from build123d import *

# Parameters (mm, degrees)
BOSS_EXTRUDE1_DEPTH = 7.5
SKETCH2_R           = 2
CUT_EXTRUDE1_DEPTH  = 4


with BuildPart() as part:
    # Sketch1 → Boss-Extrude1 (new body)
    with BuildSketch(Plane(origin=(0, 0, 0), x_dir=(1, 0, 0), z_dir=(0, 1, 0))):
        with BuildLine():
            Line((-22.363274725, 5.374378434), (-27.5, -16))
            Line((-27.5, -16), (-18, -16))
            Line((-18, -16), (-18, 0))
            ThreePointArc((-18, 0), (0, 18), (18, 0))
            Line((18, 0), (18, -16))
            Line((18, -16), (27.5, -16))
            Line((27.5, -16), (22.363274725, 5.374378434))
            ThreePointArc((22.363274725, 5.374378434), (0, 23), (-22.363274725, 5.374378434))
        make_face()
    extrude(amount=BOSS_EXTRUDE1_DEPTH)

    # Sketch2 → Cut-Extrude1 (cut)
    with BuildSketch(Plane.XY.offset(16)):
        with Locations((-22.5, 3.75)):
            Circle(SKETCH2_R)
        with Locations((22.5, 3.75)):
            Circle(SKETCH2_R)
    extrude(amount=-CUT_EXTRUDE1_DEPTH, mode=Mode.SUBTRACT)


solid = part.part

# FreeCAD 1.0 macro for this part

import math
import FreeCAD as App
import Part
import Sketcher
from FreeCAD import Vector
Q = App.Units.Quantity

doc = App.newDocument("Part")
body = doc.addObject("PartDesign::Body", "Body")

# Sketch on XZ plane
sketch1 = doc.addObject("Sketcher::SketchObject", "Sketch")
body.addObject(sketch1)
sketch1.AttachmentSupport = (doc.XZ_Plane, [""])
sketch1.MapMode = "FlatFace"
sketch1.addGeometry([
    Part.LineSegment(Vector(-22, -5, 0), Vector(-28, 16, 0)),  # 0
    Part.LineSegment(Vector(-28, 16, 0), Vector(-18, 16, 0)),  # 1
    Part.LineSegment(Vector(-18, 16, 0), Vector(-18, 0, 0)),  # 2
    Part.ArcOfCircle(Part.Circle(Vector(0, 0, 0), Vector(0, 0, 1), 18), math.radians(180), math.radians(360)),  # 3
    Part.LineSegment(Vector(18, 0, 0), Vector(18, 16, 0)),  # 4
    Part.LineSegment(Vector(18, 16, 0), Vector(28, 16, 0)),  # 5
    Part.LineSegment(Vector(28, 16, 0), Vector(22, -5, 0)),  # 6
    Part.ArcOfCircle(Part.Circle(Vector(0, 0, 0), Vector(0, 0, 1), 23), math.radians(-166), math.radians(-14)),  # 7
], False)
sketch1.addConstraint([
    Sketcher.Constraint("Coincident", 0, 2, 1, 1),
    Sketcher.Constraint("Coincident", 1, 2, 2, 1),
    Sketcher.Constraint("Tangent", 2, 2, 3, 1),
    Sketcher.Constraint("Tangent", 3, 2, 4, 1),
    Sketcher.Constraint("Coincident", 4, 2, 5, 1),
    Sketcher.Constraint("Coincident", 5, 2, 6, 1),
    Sketcher.Constraint("Tangent", 6, 2, 7, 2),
    Sketcher.Constraint("Tangent", 7, 1, 0, 1),
    Sketcher.Constraint("Horizontal", 1),
    Sketcher.Constraint("Vertical", 2),
    Sketcher.Constraint("Vertical", 4),
    Sketcher.Constraint("Horizontal", 5),
    Sketcher.Constraint("Coincident", 3, 3, -1, 1),
    Sketcher.Constraint("Coincident", 7, 3, -1, 1),
    Sketcher.Constraint("Symmetric", 0, 2, 5, 2, -2),
    Sketcher.Constraint("Radius", 3, Q("18 mm")),
    Sketcher.Constraint("Radius", 7, Q("23 mm")),
    Sketcher.Constraint("DistanceY", 2, 2, 2, 1, Q("16 mm")),
    Sketcher.Constraint("DistanceX", 1, 1, 1, 2, Q("9.5 mm")),
])
pad1 = doc.addObject("PartDesign::Pad", "Pad")
body.addObject(pad1)
pad1.Profile = sketch1
pad1.Length = 7.5
pad1.Reversed = True

# Sketch on XY plane
sketch2 = doc.addObject("Sketcher::SketchObject", "Sketch001")
body.addObject(sketch2)
sketch2.AttachmentSupport = (doc.XY_Plane, [""])
sketch2.MapMode = "FlatFace"
sketch2.AttachmentOffset = App.Placement(Vector(0, 0, 16), App.Rotation())
sketch2.addGeometry([
    Part.Circle(Vector(-22.5, 3.8, 0), Vector(0, 0, 1), 2),
    Part.Circle(Vector(22.5, 3.8, 0), Vector(0, 0, 1), 2),
], False)
sketch2.addConstraint([
    Sketcher.Constraint("Equal", 0, 1),
    Sketcher.Constraint("Symmetric", 0, 3, 1, 3, -2),
    Sketcher.Constraint("Diameter", 0, Q("4 mm")),
    Sketcher.Constraint("DistanceX", 0, 3, 1, 3, Q("45 mm")),
    Sketcher.Constraint("DistanceY", -1, 1, 0, 3, Q("3.75 mm")),
])
pocket1 = doc.addObject("PartDesign::Pocket", "Pocket")
body.addObject(pocket1)
pocket1.Profile = sketch2
pocket1.Length = 4

doc.recompute()
